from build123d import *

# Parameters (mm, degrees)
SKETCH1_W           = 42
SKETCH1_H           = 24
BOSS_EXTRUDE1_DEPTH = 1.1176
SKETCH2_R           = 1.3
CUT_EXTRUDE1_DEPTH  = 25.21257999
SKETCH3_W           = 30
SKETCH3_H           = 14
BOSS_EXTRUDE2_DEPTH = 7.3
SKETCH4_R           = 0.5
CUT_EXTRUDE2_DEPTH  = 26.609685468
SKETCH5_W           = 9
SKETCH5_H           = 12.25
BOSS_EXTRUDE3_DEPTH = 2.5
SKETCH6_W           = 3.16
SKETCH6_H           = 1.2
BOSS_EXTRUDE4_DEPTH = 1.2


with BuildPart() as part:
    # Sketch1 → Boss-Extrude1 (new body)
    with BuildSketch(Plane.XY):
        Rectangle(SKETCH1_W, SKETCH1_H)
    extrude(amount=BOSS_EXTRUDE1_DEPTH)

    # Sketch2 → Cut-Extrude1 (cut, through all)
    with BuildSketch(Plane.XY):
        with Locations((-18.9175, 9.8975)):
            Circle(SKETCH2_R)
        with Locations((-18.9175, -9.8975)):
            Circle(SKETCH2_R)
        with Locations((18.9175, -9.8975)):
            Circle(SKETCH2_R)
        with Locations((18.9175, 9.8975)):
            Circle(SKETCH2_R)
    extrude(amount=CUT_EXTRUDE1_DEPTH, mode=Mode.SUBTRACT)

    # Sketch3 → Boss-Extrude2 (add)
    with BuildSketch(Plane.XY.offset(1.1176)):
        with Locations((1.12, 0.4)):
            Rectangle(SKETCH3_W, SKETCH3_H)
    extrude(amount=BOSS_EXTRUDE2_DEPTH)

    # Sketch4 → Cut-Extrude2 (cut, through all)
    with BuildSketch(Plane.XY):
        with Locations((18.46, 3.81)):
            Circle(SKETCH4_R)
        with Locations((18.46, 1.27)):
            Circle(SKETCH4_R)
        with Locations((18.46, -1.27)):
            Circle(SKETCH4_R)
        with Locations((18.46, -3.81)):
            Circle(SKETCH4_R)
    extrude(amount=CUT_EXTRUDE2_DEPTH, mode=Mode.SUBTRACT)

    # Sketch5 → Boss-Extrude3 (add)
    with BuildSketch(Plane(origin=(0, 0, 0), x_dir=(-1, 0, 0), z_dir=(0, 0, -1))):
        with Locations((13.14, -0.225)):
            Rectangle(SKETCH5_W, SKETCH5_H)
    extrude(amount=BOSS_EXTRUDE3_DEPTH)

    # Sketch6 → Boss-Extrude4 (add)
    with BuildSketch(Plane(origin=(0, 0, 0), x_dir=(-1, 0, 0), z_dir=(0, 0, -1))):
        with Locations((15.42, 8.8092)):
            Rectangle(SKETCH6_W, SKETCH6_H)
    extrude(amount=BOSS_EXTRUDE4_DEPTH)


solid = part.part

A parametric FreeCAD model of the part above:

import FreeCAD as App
import Part
import Sketcher
from FreeCAD import Vector


def add_polygon(sketch, points):
    """Adds a closed chain of lines whose ends are joined by coincident constraints."""
    first, n = sketch.GeometryCount, len(points)
    for a, b in zip(points, points[1:] + points[:1]):
        sketch.addGeometry(Part.LineSegment(App.Vector(*a, 0), App.Vector(*b, 0)), False)
    for i in range(n):
        sketch.addConstraint(Sketcher.Constraint("Coincident", first + i, 2, first + (i + 1) % n, 1))

doc = App.newDocument("Part")
params = doc.addObject("Spreadsheet::Sheet", "Params")
for row, (alias, value) in enumerate([
    ("sketch1_width", "42 mm"),
    ("sketch1_height", "24 mm"),
    ("pad1_length", "1.1176 mm"),
    ("sketch2_diameter", "2.6 mm"),
    ("sketch3_width", "30 mm"),
    ("sketch3_height", "14 mm"),
    ("pad2_length", "7.3 mm"),
    ("sketch4_diameter", "1 mm"),
    ("sketch5_width", "9 mm"),
    ("sketch5_height", "12.25 mm"),
    ("pad3_length", "2.5 mm"),
    ("sketch6_height", "1.2 mm"),
    ("sketch6_width", "3.16 mm"),
    ("pad4_length", "1.2 mm"),
], start=1):
    params.set(f"A{row}", alias)
    params.set(f"B{row}", "=" + value)
    params.setAlias(f"B{row}", alias)

body = doc.addObject("PartDesign::Body", "Body")

# Sketch on XY plane
sketch1 = body.newObject("Sketcher::SketchObject", "Sketch")
sketch1.AttachmentSupport = (doc.getObject("XY_Plane"), [""])
sketch1.MapMode = "FlatFace"
add_polygon(sketch1, [(-21, 12), (-21, -12), (21, -12), (21, 12)])  # lines 0-3
sketch1.addConstraint([
    Sketcher.Constraint("Vertical", 0),
    Sketcher.Constraint("Horizontal", 1),
    Sketcher.Constraint("Vertical", 2),
    Sketcher.Constraint("Horizontal", 3),
    Sketcher.Constraint("Symmetric", 0, 2, 2, 2, -1, 1),
    Sketcher.Constraint("DistanceX", 1, 1, 1, 2, 42.0),
    Sketcher.Constraint("DistanceY", 0, 2, 0, 1, 24.0),
])
sketch1.setExpression("Constraints[9]", "Params.sketch1_width")
sketch1.setExpression("Constraints[10]", "Params.sketch1_height")
pad1 = body.newObject("PartDesign::Pad", "Pad")
pad1.Profile = sketch1
pad1.setExpression("Length", "Params.pad1_length")

# Sketch on XY plane
sketch2 = body.newObject("Sketcher::SketchObject", "Sketch001")
sketch2.AttachmentSupport = (doc.getObject("XY_Plane"), [""])
sketch2.MapMode = "FlatFace"
sketch2.addGeometry([
    Part.Circle(Vector(-18.9, 9.9, 0), Vector(0, 0, 1), 1.3),
    Part.Circle(Vector(-18.9, -9.9, 0), Vector(0, 0, 1), 1.3),
    Part.Circle(Vector(18.9, -9.9, 0), Vector(0, 0, 1), 1.3),
    Part.Circle(Vector(18.9, 9.9, 0), Vector(0, 0, 1), 1.3),
], False)
sketch2.addConstraint([
    Sketcher.Constraint("Equal", 0, 1),
    Sketcher.Constraint("Equal", 1, 2),
    Sketcher.Constraint("Equal", 2, 3),
    Sketcher.Constraint("Symmetric", 0, 3, 2, 3, -1, 1),
    Sketcher.Constraint("Symmetric", 1, 3, 3, 3, -1, 1),
    Sketcher.Constraint("Symmetric", 1, 3, 2, 3, -2),
    Sketcher.Constraint("Diameter", 0, 2.6),
    Sketcher.Constraint("DistanceY", 1, 3, 0, 3, 19.795),
    Sketcher.Constraint("DistanceX", 1, 3, 2, 3, 37.835),
])
sketch2.setExpression("Constraints[6]", "Params.sketch2_diameter")
pocket1 = body.newObject("PartDesign::Pocket", "Pocket")
pocket1.Profile = sketch2
pocket1.Type = "ThroughAll"
pocket1.Reversed = True

# Sketch on XY plane
sketch3 = body.newObject("Sketcher::SketchObject", "Sketch002")
sketch3.AttachmentSupport = (doc.getObject("XY_Plane"), [""])
sketch3.MapMode = "FlatFace"
sketch3.AttachmentOffset = App.Placement(Vector(0, 0, 1.1176), App.Rotation())
add_polygon(sketch3, [(-14, 7), (-14, -7), (16, -7), (16, 7)])  # lines 0-3
sketch3.addConstraint([
    Sketcher.Constraint("Vertical", 0),
    Sketcher.Constraint("Horizontal", 1),
    Sketcher.Constraint("Vertical", 2),
    Sketcher.Constraint("Horizontal", 3),
    Sketcher.Constraint("DistanceX", 1, 1, 1, 2, 30.0),
    Sketcher.Constraint("DistanceY", 0, 2, 0, 1, 14.0),
    Sketcher.Constraint("DistanceY", 0, 2, -1, 1, 6.6),
    Sketcher.Constraint("DistanceX", 0, 2, -1, 1, 13.88),
])
sketch3.setExpression("Constraints[8]", "Params.sketch3_width")
sketch3.setExpression("Constraints[9]", "Params.sketch3_height")
pad2 = body.newObject("PartDesign::Pad", "Pad001")
pad2.Profile = sketch3
pad2.setExpression("Length", "Params.pad2_length")

# Sketch on XY plane
sketch4 = body.newObject("Sketcher::SketchObject", "Sketch003")
sketch4.AttachmentSupport = (doc.getObject("XY_Plane"), [""])
sketch4.MapMode = "FlatFace"
sketch4.addGeometry([
    Part.Circle(Vector(18.5, 3.8, 0), Vector(0, 0, 1), 0.5),
    Part.Circle(Vector(18.5, 1.3, 0), Vector(0, 0, 1), 0.5),
    Part.Circle(Vector(18.5, -1.3, 0), Vector(0, 0, 1), 0.5),
    Part.Circle(Vector(18.5, -3.8, 0), Vector(0, 0, 1), 0.5),
], False)
sketch4.addConstraint([
    Sketcher.Constraint("Equal", 0, 1),
    Sketcher.Constraint("Equal", 1, 2),
    Sketcher.Constraint("Equal", 2, 3),
    Sketcher.Constraint("Symmetric", 1, 3, 2, 3, -1),
    Sketcher.Constraint("Symmetric", 0, 3, 3, 3, -1),
    Sketcher.Constraint("Vertical", 0, 3, 1, 3),
    Sketcher.Constraint("Diameter", 0, 1.0),
    Sketcher.Constraint("DistanceX", -1, 1, 0, 3, 18.46),
    Sketcher.Constraint("DistanceY", -1, 1, 0, 3, 3.81),
    Sketcher.Constraint("DistanceY", -1, 1, 1, 3, 1.27),
])
sketch4.setExpression("Constraints[6]", "Params.sketch4_diameter")
pocket2 = body.newObject("PartDesign::Pocket", "Pocket001")
pocket2.Profile = sketch4
pocket2.Type = "ThroughAll"
pocket2.Reversed = True

# Sketch on XY plane
sketch5 = body.newObject("Sketcher::SketchObject", "Sketch004")
sketch5.AttachmentSupport = (doc.getObject("XY_Plane"), [""])
sketch5.MapMode = "FlatFace"
add_polygon(sketch5, [(-9, 6), (-9, -6), (-18, -6), (-18, 6)])  # lines 0-3
sketch5.addConstraint([
    Sketcher.Constraint("Vertical", 0),
    Sketcher.Constraint("Horizontal", 1),
    Sketcher.Constraint("Vertical", 2),
    Sketcher.Constraint("Horizontal", 3),
    Sketcher.Constraint("DistanceX", 1, 2, 1, 1, 9.0),
    Sketcher.Constraint("DistanceY", 0, 2, 0, 1, 12.25),
    Sketcher.Constraint("DistanceY", -1, 1, 2, 2, 5.9),
    Sketcher.Constraint("DistanceX", 0, 2, -1, 1, 8.64),
])
sketch5.setExpression("Constraints[8]", "Params.sketch5_width")
sketch5.setExpression("Constraints[9]", "Params.sketch5_height")
pad3 = body.newObject("PartDesign::Pad", "Pad002")
pad3.Profile = sketch5
pad3.setExpression("Length", "Params.pad3_length")
pad3.Reversed = True

# Sketch on XY plane
sketch6 = body.newObject("Sketcher::SketchObject", "Sketch005")
sketch6.AttachmentSupport = (doc.getObject("XY_Plane"), [""])
sketch6.MapMode = "FlatFace"
add_polygon(sketch6, [(-13.8, 9.4), (-13.8, 8.2), (-17, 8.2), (-17, 9.4)])  # lines 0-3
sketch6.addConstraint([
    Sketcher.Constraint("Vertical", 0),
    Sketcher.Constraint("Horizontal", 1),
    Sketcher.Constraint("Vertical", 2),
    Sketcher.Constraint("Horizontal", 3),
    Sketcher.Constraint("DistanceY", 0, 2, 0, 1, 1.2),
    Sketcher.Constraint("DistanceX", 1, 2, -1, 1, 17.0),
    Sketcher.Constraint("DistanceX", 1, 2, 1, 1, 3.16),
    Sketcher.Constraint("DistanceY", -1, 1, 0, 2, 8.2092),
])
sketch6.setExpression("Constraints[8]", "Params.sketch6_height")
sketch6.setExpression("Constraints[10]", "Params.sketch6_width")
pad4 = body.newObject("PartDesign::Pad", "Pad003")
pad4.Profile = sketch6
pad4.setExpression("Length", "Params.pad4_length")
pad4.Reversed = True

doc.recompute()
